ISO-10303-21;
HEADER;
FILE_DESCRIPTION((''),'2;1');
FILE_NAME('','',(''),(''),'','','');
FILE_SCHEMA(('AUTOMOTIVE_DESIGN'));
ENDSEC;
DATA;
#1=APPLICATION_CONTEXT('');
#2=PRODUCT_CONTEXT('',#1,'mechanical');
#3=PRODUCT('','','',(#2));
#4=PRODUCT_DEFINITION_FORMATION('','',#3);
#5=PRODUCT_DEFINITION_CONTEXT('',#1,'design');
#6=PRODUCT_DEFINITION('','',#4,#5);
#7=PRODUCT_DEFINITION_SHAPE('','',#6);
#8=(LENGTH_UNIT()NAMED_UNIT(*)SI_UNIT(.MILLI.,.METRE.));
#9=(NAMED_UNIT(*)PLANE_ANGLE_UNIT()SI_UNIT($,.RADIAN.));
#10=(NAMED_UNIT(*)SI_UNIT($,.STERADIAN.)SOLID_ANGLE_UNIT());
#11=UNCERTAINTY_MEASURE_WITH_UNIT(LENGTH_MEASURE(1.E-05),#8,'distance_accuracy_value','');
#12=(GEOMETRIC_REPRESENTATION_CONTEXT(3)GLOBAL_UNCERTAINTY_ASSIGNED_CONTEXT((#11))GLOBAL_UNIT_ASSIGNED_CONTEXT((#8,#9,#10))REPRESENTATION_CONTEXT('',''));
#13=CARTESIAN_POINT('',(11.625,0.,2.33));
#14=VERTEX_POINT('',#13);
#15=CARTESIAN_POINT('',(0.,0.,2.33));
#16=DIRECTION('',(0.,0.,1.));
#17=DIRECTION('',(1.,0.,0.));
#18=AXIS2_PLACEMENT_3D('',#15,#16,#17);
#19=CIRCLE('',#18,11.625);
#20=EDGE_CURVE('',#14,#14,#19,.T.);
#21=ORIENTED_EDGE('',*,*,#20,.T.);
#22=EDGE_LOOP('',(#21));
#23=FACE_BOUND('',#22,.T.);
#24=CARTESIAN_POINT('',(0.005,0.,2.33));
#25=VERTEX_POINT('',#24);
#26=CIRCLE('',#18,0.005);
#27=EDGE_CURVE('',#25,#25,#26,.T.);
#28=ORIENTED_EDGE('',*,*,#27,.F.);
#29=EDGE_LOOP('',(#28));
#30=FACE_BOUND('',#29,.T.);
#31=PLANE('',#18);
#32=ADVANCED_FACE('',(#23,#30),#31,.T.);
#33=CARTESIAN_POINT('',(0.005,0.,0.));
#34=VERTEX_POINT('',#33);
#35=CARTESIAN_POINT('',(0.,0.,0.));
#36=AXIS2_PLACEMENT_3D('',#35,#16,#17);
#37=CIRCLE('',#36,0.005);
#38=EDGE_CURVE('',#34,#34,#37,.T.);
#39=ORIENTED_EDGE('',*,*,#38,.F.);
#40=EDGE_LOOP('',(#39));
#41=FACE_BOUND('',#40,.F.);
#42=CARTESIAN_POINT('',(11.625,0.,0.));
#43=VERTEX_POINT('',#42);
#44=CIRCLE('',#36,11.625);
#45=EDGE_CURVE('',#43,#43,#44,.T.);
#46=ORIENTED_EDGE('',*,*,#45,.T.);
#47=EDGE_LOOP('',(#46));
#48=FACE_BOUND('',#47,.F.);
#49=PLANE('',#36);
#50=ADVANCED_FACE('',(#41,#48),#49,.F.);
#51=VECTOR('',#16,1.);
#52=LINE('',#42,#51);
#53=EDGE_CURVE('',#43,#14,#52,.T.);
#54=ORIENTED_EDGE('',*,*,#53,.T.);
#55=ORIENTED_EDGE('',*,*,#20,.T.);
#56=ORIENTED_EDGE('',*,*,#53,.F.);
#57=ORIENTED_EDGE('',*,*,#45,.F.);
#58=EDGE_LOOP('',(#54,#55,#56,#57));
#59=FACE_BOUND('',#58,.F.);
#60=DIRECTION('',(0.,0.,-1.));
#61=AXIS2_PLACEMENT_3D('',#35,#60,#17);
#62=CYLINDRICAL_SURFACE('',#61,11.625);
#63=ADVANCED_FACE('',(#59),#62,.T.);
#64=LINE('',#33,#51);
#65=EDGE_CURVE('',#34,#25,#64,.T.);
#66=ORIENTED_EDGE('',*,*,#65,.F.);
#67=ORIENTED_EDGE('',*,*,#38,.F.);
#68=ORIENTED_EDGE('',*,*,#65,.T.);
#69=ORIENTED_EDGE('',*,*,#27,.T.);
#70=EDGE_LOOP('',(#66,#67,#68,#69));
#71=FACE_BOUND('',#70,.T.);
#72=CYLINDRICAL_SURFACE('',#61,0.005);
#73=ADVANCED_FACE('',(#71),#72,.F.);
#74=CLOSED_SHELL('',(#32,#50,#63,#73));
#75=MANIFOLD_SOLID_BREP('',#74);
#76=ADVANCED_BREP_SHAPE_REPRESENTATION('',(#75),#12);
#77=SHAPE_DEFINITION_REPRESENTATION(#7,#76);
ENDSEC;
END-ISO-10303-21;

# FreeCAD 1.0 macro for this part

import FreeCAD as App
import Part
import Sketcher

V = App.Vector
Q = App.Units.Quantity

doc = App.newDocument("Part")
params = doc.addObject("Spreadsheet::Sheet", "Params")
for row, (alias, value) in enumerate([
    ("sketch1_diameter", "23.25 mm"),
    ("sketch1_diameter2", "0.01 mm"),
    ("pad1_length", "2.33 mm"),
], start=1):
    params.set(f"A{row}", alias)
    params.set(f"B{row}", "=" + value)
    params.setAlias(f"B{row}", alias)

body = doc.addObject("PartDesign::Body", "Body")

sketch1 = body.newObject("Sketcher::SketchObject", "Sketch")
sketch1.AttachmentSupport = (doc.getObject("XY_Plane"), [""])
sketch1.MapMode = "FlatFace"
sketch1.addGeometry([
    Part.Circle(V(0, 0, 0), V(0, 0, 1), 11.625),
    Part.Circle(V(0, 0, 0), V(0, 0, 1), 0.005),
], False)
sketch1.addConstraint([
    Sketcher.Constraint("Coincident", 0, 3, -1, 1),
    Sketcher.Constraint("Coincident", 1, 3, -1, 1),
    Sketcher.Constraint("Diameter", 0, Q("23.25 mm")),
    Sketcher.Constraint("Diameter", 1, Q("0.01 mm")),
])
sketch1.setExpression("Constraints[2]", "Params.sketch1_diameter")
sketch1.setExpression("Constraints[3]", "Params.sketch1_diameter2")
pad1 = body.newObject("PartDesign::Pad", "Pad")
pad1.Profile = sketch1
pad1.setExpression("Length", "Params.pad1_length")

doc.recompute()
